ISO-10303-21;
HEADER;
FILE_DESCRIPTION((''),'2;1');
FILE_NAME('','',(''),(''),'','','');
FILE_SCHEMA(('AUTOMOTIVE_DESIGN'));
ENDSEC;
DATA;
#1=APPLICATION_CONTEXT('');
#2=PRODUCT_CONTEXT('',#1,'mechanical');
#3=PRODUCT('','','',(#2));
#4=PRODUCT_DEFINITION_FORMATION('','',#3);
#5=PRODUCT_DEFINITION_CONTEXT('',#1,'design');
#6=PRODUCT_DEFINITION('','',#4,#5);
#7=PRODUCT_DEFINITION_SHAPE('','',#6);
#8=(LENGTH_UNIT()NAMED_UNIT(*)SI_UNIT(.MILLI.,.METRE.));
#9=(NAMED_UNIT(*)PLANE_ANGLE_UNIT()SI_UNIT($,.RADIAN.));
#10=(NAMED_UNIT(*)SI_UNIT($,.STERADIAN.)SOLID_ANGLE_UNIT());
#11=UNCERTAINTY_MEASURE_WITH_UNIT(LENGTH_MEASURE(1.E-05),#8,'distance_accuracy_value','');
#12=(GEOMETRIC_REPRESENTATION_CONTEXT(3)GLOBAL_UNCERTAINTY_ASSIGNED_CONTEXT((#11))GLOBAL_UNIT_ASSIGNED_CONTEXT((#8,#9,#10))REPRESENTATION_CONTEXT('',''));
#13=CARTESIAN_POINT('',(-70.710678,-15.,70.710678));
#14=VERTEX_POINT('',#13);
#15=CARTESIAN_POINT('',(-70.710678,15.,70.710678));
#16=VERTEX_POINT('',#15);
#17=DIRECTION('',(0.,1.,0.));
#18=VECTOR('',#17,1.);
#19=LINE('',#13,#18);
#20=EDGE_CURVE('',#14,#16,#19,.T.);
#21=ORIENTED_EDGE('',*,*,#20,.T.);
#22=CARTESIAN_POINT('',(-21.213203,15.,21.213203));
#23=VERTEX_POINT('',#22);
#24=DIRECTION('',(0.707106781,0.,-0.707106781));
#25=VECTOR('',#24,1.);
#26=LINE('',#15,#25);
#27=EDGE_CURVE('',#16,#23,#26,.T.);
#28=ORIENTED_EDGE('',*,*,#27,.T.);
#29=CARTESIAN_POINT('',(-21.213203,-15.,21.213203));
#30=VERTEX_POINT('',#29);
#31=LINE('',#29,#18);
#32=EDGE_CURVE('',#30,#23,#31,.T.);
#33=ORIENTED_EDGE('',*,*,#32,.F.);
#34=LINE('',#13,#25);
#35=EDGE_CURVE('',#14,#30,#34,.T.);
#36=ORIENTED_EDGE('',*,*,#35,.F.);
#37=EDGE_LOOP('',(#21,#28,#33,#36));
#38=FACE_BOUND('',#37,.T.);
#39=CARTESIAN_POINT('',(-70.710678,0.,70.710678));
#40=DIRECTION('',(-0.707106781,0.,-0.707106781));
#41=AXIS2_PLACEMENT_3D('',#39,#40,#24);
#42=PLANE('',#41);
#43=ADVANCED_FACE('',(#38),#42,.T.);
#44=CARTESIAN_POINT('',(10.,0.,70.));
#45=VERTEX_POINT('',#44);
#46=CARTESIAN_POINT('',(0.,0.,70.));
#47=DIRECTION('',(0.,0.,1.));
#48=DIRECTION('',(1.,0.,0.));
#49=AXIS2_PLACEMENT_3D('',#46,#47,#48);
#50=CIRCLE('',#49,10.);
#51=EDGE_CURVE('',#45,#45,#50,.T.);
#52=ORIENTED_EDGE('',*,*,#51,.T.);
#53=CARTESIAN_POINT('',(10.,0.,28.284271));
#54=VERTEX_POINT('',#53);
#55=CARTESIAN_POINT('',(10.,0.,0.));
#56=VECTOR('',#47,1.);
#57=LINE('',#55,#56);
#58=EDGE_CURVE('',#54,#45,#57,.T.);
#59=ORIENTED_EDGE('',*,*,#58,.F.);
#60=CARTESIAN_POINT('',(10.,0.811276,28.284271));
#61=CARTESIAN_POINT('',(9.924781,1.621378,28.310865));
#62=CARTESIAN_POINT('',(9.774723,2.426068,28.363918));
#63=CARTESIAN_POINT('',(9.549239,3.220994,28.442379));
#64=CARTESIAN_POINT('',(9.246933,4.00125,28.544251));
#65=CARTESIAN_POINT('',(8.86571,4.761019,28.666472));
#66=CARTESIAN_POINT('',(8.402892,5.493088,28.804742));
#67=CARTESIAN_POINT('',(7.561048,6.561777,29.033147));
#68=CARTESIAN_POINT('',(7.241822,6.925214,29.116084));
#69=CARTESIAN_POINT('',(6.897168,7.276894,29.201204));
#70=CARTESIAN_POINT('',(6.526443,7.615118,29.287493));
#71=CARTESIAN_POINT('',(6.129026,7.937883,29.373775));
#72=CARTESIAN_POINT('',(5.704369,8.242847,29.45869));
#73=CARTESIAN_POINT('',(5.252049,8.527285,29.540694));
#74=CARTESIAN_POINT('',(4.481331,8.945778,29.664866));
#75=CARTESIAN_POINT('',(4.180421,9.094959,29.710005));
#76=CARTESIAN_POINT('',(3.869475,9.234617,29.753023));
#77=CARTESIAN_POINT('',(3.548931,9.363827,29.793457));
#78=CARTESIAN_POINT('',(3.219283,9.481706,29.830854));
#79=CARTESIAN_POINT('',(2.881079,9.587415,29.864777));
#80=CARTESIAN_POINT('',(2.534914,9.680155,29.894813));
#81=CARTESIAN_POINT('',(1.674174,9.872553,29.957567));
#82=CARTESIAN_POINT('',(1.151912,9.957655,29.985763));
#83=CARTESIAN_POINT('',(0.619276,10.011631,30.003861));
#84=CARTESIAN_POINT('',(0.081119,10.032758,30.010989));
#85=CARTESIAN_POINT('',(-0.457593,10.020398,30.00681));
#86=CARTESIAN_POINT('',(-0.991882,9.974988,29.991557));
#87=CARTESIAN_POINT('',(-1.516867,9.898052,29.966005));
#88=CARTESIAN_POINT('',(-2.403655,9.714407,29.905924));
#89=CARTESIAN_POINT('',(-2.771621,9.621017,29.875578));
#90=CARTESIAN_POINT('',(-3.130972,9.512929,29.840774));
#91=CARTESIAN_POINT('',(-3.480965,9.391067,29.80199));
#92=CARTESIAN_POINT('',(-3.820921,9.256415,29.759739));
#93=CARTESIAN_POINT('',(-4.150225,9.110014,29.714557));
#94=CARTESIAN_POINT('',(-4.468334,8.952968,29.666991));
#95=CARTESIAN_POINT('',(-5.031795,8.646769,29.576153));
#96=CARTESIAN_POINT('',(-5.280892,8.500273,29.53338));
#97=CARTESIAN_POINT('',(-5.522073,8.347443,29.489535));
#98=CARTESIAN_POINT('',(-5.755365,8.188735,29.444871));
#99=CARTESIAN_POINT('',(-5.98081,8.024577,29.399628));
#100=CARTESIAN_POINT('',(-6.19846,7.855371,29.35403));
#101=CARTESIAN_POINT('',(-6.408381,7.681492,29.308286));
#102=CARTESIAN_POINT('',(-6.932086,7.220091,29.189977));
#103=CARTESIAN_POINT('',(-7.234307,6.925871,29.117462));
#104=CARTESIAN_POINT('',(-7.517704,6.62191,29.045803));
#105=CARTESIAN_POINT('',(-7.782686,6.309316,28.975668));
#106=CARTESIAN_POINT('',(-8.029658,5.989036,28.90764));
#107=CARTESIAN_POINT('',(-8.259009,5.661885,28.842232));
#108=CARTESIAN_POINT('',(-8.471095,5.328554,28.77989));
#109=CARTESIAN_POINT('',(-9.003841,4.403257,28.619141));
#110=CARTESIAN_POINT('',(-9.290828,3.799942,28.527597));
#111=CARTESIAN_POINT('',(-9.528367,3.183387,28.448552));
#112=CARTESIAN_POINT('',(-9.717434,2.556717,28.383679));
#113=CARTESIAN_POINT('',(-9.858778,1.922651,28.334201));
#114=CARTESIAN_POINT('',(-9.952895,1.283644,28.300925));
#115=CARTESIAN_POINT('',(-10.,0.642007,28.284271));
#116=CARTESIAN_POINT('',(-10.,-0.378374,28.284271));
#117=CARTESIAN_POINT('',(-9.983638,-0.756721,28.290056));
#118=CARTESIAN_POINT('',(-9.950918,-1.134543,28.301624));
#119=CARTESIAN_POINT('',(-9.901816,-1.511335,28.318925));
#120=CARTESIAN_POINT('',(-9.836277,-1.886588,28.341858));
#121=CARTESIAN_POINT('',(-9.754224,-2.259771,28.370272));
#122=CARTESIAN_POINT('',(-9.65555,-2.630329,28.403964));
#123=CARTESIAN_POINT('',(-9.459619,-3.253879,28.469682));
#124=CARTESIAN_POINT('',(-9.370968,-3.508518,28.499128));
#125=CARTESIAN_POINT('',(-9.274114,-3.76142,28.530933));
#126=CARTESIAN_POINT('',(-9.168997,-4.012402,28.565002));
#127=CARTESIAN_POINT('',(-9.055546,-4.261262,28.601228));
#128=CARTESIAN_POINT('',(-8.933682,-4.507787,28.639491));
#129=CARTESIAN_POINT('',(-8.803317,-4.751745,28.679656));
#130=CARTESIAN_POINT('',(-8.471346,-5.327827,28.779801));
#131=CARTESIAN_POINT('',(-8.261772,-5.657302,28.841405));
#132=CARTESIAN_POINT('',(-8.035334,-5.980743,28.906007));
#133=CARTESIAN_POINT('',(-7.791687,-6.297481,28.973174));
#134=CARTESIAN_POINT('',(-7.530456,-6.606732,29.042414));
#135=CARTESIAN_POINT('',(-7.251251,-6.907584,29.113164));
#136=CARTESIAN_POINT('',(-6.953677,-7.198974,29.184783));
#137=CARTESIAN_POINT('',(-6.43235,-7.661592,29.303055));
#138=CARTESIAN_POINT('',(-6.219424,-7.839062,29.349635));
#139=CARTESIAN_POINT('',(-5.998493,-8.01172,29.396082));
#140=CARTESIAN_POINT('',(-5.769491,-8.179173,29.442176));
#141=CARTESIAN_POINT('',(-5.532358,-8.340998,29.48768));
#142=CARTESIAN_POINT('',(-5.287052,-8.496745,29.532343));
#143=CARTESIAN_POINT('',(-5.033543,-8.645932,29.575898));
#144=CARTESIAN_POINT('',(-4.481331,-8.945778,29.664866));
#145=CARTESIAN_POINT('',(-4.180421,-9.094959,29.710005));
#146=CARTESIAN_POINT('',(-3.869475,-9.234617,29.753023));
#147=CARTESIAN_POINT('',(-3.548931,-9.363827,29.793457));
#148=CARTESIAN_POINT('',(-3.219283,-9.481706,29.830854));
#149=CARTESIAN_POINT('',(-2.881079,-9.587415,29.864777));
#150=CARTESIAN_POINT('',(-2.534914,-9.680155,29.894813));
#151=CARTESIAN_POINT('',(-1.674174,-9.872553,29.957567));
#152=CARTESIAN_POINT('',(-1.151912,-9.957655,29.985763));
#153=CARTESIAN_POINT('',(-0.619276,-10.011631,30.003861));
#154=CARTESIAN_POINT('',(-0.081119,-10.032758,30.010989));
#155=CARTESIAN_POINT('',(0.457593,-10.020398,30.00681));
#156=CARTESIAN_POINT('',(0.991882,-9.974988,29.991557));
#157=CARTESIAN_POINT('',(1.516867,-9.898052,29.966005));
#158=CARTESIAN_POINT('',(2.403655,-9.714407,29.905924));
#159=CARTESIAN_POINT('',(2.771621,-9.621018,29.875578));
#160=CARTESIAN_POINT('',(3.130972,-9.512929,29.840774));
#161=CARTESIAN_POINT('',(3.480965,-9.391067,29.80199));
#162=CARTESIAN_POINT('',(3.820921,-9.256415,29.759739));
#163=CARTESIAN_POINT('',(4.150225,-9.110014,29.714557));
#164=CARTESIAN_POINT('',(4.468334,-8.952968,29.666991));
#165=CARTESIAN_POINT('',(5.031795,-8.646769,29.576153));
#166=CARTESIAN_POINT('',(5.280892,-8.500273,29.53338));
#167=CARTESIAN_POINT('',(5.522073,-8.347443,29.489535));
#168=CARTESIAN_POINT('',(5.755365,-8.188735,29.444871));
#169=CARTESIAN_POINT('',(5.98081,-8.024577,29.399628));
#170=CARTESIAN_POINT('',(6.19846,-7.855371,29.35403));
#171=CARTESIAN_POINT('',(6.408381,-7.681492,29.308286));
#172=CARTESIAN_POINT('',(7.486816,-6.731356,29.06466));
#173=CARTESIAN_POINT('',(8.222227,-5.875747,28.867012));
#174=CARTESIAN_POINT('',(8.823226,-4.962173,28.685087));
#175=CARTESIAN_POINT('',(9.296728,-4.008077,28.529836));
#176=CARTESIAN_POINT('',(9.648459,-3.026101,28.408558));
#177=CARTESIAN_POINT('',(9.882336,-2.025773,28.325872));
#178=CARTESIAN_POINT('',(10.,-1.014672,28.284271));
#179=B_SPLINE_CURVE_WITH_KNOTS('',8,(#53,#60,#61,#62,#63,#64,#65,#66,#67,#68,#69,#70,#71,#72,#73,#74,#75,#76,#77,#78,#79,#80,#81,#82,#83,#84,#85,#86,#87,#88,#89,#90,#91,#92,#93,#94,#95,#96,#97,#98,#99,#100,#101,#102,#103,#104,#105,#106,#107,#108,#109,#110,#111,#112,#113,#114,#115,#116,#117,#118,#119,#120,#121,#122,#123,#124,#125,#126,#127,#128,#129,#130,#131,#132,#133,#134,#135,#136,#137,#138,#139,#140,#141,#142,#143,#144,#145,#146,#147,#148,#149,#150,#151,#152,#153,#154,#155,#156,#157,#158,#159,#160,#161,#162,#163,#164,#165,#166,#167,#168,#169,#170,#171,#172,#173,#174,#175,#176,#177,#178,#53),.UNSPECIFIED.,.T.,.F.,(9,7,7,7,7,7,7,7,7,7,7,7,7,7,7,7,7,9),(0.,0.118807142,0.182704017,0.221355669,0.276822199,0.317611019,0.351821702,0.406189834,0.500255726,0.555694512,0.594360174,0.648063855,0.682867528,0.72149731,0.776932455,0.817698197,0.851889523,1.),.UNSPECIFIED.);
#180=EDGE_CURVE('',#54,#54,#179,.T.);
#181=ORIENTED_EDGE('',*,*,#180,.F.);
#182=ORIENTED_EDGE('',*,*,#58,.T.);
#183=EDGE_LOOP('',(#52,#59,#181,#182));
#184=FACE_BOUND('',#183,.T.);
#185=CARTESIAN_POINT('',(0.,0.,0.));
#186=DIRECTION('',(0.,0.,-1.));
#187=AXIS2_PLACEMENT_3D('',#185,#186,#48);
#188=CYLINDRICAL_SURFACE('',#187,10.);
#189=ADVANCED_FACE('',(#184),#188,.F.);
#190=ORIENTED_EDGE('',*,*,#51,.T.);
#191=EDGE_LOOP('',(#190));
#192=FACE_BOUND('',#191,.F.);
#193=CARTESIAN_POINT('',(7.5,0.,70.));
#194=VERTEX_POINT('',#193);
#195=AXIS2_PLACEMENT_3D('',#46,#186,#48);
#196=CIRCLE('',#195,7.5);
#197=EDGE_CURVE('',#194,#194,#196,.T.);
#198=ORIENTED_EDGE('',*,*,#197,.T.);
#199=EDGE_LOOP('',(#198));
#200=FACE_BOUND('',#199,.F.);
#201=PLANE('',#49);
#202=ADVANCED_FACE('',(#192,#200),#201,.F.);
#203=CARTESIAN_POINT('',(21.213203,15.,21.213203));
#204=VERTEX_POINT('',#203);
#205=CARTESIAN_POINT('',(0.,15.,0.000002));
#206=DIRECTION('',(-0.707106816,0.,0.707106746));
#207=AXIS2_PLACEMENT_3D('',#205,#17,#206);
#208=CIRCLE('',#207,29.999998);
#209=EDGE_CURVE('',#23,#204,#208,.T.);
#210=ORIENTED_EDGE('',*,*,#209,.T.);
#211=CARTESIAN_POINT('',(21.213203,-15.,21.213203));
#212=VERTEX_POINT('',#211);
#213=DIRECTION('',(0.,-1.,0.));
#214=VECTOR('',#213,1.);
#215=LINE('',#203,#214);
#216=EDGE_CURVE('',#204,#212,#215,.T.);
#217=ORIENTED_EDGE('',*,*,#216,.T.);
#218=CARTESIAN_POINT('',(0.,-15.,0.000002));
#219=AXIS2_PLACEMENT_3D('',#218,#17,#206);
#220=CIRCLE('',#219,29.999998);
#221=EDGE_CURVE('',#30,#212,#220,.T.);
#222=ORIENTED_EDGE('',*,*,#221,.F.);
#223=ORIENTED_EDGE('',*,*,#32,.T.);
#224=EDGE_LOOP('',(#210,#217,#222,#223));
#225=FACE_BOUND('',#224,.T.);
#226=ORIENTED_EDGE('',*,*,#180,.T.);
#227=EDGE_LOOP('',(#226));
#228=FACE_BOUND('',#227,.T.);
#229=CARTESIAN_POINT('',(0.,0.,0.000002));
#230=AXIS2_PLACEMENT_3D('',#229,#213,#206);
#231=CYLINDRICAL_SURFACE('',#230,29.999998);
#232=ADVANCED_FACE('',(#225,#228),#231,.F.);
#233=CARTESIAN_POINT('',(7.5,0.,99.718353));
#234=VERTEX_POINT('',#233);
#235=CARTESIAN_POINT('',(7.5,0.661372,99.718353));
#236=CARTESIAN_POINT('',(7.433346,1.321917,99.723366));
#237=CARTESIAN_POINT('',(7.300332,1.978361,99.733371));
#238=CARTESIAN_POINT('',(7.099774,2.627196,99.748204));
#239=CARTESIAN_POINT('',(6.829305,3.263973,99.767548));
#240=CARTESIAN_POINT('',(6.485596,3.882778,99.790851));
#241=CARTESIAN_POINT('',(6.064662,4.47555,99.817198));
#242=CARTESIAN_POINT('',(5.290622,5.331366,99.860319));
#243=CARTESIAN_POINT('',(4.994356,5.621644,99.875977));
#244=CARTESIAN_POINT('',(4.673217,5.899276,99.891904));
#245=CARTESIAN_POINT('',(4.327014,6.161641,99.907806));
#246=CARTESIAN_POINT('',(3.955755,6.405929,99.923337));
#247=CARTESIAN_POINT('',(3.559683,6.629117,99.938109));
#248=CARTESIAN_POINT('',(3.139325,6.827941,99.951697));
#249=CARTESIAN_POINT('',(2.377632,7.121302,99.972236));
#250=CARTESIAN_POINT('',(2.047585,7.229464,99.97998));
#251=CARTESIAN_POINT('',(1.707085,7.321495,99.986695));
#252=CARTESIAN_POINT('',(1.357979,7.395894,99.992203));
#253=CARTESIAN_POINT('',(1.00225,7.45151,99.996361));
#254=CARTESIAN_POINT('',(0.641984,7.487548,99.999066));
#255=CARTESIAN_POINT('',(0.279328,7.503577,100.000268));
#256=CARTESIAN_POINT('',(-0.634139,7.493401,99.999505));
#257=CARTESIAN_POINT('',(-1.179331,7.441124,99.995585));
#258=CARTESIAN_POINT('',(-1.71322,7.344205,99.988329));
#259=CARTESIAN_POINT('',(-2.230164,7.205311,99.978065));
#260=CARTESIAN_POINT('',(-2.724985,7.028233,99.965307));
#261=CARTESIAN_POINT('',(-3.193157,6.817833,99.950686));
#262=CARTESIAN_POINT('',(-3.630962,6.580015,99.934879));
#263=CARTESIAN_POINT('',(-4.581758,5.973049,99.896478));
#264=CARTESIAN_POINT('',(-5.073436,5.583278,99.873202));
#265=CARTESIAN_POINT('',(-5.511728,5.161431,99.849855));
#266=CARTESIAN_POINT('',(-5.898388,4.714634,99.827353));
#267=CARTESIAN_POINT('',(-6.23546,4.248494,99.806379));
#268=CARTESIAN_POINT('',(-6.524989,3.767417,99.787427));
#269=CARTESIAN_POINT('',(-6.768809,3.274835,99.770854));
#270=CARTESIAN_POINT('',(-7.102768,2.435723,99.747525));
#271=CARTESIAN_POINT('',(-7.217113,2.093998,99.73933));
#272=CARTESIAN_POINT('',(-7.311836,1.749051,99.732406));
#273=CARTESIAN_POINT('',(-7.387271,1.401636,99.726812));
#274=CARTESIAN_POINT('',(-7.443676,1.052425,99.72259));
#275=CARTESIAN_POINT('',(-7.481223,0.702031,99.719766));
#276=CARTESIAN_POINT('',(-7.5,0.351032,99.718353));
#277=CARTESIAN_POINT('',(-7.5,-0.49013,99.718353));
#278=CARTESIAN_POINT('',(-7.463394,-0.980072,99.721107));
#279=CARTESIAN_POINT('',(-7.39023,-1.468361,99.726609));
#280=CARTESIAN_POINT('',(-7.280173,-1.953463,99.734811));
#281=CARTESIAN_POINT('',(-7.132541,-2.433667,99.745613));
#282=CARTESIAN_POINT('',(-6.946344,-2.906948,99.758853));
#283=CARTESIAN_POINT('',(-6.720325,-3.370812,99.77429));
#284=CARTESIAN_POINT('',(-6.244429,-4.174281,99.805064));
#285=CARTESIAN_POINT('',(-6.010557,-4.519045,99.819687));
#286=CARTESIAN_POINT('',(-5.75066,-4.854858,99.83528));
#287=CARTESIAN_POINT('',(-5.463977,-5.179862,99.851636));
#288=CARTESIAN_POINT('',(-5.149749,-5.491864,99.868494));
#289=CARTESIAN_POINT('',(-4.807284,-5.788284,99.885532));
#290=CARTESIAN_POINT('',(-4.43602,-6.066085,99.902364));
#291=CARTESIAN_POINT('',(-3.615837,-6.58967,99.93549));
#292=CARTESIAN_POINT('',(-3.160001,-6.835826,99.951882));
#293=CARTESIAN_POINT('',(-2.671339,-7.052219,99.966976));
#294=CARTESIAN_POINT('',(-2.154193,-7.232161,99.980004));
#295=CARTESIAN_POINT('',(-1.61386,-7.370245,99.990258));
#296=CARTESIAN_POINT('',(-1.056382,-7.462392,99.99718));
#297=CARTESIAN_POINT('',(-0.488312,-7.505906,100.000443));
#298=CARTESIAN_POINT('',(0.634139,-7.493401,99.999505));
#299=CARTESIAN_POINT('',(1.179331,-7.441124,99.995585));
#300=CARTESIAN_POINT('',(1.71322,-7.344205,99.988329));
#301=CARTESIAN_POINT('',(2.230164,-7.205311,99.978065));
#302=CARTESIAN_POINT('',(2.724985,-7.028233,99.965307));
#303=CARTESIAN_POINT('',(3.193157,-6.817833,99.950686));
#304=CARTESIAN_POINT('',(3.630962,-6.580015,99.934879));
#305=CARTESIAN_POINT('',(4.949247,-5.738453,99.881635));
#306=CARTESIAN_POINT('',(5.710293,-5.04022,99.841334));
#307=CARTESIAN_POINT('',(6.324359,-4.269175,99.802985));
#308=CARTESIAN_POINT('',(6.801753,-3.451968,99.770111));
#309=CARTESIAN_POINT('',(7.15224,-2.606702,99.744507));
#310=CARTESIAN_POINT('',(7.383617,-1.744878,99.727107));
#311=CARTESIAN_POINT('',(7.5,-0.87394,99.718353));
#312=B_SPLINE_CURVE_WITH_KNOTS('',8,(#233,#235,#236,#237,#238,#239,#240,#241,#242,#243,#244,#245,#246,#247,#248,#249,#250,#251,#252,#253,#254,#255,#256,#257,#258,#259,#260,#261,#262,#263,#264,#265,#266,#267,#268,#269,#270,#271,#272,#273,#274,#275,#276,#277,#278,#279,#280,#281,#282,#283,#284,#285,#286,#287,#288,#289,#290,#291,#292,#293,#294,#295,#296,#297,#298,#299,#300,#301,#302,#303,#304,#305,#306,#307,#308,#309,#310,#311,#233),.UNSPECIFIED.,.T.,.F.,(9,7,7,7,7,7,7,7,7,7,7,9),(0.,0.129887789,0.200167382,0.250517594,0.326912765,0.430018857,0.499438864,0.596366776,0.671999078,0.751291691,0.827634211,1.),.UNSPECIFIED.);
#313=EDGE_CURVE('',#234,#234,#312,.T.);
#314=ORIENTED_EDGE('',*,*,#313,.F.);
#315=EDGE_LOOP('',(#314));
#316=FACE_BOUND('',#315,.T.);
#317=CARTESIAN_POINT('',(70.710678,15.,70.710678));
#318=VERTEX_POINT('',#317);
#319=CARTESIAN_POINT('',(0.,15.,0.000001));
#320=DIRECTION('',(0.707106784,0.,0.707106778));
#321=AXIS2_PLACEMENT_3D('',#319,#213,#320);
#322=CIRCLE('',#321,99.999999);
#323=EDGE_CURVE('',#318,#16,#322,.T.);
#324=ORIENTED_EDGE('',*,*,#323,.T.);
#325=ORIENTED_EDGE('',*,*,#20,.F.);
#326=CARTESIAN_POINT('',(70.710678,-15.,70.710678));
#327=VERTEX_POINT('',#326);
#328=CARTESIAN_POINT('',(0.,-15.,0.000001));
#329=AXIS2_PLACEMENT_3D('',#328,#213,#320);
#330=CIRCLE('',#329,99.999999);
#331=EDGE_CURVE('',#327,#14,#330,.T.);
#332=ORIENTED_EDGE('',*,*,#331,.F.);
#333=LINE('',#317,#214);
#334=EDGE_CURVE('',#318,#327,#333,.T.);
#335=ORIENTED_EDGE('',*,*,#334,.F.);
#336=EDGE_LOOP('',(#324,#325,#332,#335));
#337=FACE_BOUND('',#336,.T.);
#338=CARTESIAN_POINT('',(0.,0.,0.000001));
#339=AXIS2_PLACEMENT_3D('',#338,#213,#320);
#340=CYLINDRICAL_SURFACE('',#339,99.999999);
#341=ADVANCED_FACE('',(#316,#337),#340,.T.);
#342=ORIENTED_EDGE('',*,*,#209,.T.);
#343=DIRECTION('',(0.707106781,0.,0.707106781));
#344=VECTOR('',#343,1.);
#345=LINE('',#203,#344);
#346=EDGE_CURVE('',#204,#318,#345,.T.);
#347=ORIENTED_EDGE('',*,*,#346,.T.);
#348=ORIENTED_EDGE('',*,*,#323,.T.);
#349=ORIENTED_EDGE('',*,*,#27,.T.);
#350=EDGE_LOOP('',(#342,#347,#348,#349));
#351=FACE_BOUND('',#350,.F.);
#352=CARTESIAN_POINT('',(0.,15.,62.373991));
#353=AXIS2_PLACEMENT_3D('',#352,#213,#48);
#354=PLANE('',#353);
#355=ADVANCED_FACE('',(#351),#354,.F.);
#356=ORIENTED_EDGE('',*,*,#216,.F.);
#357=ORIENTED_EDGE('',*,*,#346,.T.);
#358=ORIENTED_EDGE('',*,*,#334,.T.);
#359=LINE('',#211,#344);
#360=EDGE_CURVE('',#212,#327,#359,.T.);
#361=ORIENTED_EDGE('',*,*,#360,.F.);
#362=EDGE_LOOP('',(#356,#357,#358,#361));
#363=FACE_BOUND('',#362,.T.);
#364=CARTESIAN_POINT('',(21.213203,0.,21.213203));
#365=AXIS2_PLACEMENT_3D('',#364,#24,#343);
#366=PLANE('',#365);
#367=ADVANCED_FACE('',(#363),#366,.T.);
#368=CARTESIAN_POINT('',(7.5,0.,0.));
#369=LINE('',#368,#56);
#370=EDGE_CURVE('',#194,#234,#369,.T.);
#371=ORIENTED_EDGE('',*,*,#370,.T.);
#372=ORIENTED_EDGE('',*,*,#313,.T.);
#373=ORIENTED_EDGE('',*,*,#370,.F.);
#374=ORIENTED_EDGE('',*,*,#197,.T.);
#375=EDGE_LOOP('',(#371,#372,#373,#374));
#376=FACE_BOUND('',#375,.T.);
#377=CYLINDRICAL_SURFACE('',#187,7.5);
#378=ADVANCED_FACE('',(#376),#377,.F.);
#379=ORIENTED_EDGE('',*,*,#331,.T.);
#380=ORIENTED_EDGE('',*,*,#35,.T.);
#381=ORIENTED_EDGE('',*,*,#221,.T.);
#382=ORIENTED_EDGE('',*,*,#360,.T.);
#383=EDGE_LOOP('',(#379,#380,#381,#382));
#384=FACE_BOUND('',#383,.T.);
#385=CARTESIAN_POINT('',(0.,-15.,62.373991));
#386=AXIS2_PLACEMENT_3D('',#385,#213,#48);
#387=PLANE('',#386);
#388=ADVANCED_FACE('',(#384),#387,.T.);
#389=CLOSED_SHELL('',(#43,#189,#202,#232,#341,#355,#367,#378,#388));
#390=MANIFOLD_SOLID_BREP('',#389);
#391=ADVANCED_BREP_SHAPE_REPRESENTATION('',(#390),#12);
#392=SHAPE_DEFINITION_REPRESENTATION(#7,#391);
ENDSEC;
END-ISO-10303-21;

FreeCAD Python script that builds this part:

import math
import FreeCAD as App
import Part
import Sketcher
from FreeCAD import Vector
Q = App.Units.Quantity

doc = App.newDocument("Part")
body = doc.addObject("PartDesign::Body", "Body")

sketch1 = body.newObject("Sketcher::SketchObject", "Sketch")
sketch1.AttachmentSupport = (doc.getObject("XZ_Plane"), [""])
sketch1.MapMode = "FlatFace"
sketch1.addGeometry([
    Part.ArcOfCircle(Part.Circle(Vector(0, 0, 0), Vector(0, 0, 1), 30), math.radians(45), math.radians(135)),
    Part.LineSegment(Vector(21, 21, 0), Vector(71, 71, 0)),
    Part.ArcOfCircle(Part.Circle(Vector(0, 0, 0), Vector(0, 0, 1), 100), math.radians(45), math.radians(135)),
    Part.LineSegment(Vector(-71, 71, 0), Vector(-21, 21, 0)),
], False)
sketch1.addConstraint([
    Sketcher.Constraint("Coincident", 0, 1, 1, 1),
    Sketcher.Constraint("Coincident", 1, 2, 2, 1),
    Sketcher.Constraint("Coincident", 2, 2, 3, 1),
    Sketcher.Constraint("Coincident", 3, 2, 0, 2),
    Sketcher.Constraint("Coincident", 0, 3, -1, 1),
    Sketcher.Constraint("Coincident", 2, 3, -1, 1),
    Sketcher.Constraint("Perpendicular", 1, 3),
    Sketcher.Constraint("Horizontal", 1, 2, 2, 2),
    Sketcher.Constraint("Horizontal", 0, 1, 3, 2),
    Sketcher.Constraint("Radius", 2, Q("99.999999 mm")),
    Sketcher.Constraint("Distance", 1, Q("70 mm")),
    Sketcher.Constraint("DistanceY", 0, 3, 0, 1, Q("21.213201 mm")),
])
pad1 = body.newObject("PartDesign::Pad", "Pad")
pad1.Profile = sketch1
pad1.Length = 30
pad1.Midplane = True

sketch2 = body.newObject("Sketcher::SketchObject", "Sketch001")
sketch2.AttachmentSupport = (doc.getObject("XY_Plane"), [""])
sketch2.MapMode = "FlatFace"
sketch2.addGeometry(Part.Circle(Vector(0, 0, 0), Vector(0, 0, 1), 8), False)
sketch2.addConstraint([
    Sketcher.Constraint("Coincident", 0, 3, -1, 1),
    Sketcher.Constraint("Diameter", 0, Q("15 mm")),
])
pocket1 = body.newObject("PartDesign::Pocket", "Pocket")
pocket1.Profile = sketch2
pocket1.Length = 200.658232
pocket1.Reversed = True

sketch3 = body.newObject("Sketcher::SketchObject", "Sketch002")
sketch3.AttachmentSupport = (doc.getObject("XY_Plane"), [""])
sketch3.MapMode = "FlatFace"
sketch3.addGeometry(Part.Circle(Vector(0, 0, 0), Vector(0, 0, 1), 10), False)
sketch3.addConstraint([
    Sketcher.Constraint("Coincident", 0, 3, -1, 1),
    Sketcher.Constraint("Diameter", 0, Q("20 mm")),
])
pocket2 = body.newObject("PartDesign::Pocket", "Pocket001")
pocket2.Profile = sketch3
pocket2.Length = 70
pocket2.Reversed = True

doc.recompute()
